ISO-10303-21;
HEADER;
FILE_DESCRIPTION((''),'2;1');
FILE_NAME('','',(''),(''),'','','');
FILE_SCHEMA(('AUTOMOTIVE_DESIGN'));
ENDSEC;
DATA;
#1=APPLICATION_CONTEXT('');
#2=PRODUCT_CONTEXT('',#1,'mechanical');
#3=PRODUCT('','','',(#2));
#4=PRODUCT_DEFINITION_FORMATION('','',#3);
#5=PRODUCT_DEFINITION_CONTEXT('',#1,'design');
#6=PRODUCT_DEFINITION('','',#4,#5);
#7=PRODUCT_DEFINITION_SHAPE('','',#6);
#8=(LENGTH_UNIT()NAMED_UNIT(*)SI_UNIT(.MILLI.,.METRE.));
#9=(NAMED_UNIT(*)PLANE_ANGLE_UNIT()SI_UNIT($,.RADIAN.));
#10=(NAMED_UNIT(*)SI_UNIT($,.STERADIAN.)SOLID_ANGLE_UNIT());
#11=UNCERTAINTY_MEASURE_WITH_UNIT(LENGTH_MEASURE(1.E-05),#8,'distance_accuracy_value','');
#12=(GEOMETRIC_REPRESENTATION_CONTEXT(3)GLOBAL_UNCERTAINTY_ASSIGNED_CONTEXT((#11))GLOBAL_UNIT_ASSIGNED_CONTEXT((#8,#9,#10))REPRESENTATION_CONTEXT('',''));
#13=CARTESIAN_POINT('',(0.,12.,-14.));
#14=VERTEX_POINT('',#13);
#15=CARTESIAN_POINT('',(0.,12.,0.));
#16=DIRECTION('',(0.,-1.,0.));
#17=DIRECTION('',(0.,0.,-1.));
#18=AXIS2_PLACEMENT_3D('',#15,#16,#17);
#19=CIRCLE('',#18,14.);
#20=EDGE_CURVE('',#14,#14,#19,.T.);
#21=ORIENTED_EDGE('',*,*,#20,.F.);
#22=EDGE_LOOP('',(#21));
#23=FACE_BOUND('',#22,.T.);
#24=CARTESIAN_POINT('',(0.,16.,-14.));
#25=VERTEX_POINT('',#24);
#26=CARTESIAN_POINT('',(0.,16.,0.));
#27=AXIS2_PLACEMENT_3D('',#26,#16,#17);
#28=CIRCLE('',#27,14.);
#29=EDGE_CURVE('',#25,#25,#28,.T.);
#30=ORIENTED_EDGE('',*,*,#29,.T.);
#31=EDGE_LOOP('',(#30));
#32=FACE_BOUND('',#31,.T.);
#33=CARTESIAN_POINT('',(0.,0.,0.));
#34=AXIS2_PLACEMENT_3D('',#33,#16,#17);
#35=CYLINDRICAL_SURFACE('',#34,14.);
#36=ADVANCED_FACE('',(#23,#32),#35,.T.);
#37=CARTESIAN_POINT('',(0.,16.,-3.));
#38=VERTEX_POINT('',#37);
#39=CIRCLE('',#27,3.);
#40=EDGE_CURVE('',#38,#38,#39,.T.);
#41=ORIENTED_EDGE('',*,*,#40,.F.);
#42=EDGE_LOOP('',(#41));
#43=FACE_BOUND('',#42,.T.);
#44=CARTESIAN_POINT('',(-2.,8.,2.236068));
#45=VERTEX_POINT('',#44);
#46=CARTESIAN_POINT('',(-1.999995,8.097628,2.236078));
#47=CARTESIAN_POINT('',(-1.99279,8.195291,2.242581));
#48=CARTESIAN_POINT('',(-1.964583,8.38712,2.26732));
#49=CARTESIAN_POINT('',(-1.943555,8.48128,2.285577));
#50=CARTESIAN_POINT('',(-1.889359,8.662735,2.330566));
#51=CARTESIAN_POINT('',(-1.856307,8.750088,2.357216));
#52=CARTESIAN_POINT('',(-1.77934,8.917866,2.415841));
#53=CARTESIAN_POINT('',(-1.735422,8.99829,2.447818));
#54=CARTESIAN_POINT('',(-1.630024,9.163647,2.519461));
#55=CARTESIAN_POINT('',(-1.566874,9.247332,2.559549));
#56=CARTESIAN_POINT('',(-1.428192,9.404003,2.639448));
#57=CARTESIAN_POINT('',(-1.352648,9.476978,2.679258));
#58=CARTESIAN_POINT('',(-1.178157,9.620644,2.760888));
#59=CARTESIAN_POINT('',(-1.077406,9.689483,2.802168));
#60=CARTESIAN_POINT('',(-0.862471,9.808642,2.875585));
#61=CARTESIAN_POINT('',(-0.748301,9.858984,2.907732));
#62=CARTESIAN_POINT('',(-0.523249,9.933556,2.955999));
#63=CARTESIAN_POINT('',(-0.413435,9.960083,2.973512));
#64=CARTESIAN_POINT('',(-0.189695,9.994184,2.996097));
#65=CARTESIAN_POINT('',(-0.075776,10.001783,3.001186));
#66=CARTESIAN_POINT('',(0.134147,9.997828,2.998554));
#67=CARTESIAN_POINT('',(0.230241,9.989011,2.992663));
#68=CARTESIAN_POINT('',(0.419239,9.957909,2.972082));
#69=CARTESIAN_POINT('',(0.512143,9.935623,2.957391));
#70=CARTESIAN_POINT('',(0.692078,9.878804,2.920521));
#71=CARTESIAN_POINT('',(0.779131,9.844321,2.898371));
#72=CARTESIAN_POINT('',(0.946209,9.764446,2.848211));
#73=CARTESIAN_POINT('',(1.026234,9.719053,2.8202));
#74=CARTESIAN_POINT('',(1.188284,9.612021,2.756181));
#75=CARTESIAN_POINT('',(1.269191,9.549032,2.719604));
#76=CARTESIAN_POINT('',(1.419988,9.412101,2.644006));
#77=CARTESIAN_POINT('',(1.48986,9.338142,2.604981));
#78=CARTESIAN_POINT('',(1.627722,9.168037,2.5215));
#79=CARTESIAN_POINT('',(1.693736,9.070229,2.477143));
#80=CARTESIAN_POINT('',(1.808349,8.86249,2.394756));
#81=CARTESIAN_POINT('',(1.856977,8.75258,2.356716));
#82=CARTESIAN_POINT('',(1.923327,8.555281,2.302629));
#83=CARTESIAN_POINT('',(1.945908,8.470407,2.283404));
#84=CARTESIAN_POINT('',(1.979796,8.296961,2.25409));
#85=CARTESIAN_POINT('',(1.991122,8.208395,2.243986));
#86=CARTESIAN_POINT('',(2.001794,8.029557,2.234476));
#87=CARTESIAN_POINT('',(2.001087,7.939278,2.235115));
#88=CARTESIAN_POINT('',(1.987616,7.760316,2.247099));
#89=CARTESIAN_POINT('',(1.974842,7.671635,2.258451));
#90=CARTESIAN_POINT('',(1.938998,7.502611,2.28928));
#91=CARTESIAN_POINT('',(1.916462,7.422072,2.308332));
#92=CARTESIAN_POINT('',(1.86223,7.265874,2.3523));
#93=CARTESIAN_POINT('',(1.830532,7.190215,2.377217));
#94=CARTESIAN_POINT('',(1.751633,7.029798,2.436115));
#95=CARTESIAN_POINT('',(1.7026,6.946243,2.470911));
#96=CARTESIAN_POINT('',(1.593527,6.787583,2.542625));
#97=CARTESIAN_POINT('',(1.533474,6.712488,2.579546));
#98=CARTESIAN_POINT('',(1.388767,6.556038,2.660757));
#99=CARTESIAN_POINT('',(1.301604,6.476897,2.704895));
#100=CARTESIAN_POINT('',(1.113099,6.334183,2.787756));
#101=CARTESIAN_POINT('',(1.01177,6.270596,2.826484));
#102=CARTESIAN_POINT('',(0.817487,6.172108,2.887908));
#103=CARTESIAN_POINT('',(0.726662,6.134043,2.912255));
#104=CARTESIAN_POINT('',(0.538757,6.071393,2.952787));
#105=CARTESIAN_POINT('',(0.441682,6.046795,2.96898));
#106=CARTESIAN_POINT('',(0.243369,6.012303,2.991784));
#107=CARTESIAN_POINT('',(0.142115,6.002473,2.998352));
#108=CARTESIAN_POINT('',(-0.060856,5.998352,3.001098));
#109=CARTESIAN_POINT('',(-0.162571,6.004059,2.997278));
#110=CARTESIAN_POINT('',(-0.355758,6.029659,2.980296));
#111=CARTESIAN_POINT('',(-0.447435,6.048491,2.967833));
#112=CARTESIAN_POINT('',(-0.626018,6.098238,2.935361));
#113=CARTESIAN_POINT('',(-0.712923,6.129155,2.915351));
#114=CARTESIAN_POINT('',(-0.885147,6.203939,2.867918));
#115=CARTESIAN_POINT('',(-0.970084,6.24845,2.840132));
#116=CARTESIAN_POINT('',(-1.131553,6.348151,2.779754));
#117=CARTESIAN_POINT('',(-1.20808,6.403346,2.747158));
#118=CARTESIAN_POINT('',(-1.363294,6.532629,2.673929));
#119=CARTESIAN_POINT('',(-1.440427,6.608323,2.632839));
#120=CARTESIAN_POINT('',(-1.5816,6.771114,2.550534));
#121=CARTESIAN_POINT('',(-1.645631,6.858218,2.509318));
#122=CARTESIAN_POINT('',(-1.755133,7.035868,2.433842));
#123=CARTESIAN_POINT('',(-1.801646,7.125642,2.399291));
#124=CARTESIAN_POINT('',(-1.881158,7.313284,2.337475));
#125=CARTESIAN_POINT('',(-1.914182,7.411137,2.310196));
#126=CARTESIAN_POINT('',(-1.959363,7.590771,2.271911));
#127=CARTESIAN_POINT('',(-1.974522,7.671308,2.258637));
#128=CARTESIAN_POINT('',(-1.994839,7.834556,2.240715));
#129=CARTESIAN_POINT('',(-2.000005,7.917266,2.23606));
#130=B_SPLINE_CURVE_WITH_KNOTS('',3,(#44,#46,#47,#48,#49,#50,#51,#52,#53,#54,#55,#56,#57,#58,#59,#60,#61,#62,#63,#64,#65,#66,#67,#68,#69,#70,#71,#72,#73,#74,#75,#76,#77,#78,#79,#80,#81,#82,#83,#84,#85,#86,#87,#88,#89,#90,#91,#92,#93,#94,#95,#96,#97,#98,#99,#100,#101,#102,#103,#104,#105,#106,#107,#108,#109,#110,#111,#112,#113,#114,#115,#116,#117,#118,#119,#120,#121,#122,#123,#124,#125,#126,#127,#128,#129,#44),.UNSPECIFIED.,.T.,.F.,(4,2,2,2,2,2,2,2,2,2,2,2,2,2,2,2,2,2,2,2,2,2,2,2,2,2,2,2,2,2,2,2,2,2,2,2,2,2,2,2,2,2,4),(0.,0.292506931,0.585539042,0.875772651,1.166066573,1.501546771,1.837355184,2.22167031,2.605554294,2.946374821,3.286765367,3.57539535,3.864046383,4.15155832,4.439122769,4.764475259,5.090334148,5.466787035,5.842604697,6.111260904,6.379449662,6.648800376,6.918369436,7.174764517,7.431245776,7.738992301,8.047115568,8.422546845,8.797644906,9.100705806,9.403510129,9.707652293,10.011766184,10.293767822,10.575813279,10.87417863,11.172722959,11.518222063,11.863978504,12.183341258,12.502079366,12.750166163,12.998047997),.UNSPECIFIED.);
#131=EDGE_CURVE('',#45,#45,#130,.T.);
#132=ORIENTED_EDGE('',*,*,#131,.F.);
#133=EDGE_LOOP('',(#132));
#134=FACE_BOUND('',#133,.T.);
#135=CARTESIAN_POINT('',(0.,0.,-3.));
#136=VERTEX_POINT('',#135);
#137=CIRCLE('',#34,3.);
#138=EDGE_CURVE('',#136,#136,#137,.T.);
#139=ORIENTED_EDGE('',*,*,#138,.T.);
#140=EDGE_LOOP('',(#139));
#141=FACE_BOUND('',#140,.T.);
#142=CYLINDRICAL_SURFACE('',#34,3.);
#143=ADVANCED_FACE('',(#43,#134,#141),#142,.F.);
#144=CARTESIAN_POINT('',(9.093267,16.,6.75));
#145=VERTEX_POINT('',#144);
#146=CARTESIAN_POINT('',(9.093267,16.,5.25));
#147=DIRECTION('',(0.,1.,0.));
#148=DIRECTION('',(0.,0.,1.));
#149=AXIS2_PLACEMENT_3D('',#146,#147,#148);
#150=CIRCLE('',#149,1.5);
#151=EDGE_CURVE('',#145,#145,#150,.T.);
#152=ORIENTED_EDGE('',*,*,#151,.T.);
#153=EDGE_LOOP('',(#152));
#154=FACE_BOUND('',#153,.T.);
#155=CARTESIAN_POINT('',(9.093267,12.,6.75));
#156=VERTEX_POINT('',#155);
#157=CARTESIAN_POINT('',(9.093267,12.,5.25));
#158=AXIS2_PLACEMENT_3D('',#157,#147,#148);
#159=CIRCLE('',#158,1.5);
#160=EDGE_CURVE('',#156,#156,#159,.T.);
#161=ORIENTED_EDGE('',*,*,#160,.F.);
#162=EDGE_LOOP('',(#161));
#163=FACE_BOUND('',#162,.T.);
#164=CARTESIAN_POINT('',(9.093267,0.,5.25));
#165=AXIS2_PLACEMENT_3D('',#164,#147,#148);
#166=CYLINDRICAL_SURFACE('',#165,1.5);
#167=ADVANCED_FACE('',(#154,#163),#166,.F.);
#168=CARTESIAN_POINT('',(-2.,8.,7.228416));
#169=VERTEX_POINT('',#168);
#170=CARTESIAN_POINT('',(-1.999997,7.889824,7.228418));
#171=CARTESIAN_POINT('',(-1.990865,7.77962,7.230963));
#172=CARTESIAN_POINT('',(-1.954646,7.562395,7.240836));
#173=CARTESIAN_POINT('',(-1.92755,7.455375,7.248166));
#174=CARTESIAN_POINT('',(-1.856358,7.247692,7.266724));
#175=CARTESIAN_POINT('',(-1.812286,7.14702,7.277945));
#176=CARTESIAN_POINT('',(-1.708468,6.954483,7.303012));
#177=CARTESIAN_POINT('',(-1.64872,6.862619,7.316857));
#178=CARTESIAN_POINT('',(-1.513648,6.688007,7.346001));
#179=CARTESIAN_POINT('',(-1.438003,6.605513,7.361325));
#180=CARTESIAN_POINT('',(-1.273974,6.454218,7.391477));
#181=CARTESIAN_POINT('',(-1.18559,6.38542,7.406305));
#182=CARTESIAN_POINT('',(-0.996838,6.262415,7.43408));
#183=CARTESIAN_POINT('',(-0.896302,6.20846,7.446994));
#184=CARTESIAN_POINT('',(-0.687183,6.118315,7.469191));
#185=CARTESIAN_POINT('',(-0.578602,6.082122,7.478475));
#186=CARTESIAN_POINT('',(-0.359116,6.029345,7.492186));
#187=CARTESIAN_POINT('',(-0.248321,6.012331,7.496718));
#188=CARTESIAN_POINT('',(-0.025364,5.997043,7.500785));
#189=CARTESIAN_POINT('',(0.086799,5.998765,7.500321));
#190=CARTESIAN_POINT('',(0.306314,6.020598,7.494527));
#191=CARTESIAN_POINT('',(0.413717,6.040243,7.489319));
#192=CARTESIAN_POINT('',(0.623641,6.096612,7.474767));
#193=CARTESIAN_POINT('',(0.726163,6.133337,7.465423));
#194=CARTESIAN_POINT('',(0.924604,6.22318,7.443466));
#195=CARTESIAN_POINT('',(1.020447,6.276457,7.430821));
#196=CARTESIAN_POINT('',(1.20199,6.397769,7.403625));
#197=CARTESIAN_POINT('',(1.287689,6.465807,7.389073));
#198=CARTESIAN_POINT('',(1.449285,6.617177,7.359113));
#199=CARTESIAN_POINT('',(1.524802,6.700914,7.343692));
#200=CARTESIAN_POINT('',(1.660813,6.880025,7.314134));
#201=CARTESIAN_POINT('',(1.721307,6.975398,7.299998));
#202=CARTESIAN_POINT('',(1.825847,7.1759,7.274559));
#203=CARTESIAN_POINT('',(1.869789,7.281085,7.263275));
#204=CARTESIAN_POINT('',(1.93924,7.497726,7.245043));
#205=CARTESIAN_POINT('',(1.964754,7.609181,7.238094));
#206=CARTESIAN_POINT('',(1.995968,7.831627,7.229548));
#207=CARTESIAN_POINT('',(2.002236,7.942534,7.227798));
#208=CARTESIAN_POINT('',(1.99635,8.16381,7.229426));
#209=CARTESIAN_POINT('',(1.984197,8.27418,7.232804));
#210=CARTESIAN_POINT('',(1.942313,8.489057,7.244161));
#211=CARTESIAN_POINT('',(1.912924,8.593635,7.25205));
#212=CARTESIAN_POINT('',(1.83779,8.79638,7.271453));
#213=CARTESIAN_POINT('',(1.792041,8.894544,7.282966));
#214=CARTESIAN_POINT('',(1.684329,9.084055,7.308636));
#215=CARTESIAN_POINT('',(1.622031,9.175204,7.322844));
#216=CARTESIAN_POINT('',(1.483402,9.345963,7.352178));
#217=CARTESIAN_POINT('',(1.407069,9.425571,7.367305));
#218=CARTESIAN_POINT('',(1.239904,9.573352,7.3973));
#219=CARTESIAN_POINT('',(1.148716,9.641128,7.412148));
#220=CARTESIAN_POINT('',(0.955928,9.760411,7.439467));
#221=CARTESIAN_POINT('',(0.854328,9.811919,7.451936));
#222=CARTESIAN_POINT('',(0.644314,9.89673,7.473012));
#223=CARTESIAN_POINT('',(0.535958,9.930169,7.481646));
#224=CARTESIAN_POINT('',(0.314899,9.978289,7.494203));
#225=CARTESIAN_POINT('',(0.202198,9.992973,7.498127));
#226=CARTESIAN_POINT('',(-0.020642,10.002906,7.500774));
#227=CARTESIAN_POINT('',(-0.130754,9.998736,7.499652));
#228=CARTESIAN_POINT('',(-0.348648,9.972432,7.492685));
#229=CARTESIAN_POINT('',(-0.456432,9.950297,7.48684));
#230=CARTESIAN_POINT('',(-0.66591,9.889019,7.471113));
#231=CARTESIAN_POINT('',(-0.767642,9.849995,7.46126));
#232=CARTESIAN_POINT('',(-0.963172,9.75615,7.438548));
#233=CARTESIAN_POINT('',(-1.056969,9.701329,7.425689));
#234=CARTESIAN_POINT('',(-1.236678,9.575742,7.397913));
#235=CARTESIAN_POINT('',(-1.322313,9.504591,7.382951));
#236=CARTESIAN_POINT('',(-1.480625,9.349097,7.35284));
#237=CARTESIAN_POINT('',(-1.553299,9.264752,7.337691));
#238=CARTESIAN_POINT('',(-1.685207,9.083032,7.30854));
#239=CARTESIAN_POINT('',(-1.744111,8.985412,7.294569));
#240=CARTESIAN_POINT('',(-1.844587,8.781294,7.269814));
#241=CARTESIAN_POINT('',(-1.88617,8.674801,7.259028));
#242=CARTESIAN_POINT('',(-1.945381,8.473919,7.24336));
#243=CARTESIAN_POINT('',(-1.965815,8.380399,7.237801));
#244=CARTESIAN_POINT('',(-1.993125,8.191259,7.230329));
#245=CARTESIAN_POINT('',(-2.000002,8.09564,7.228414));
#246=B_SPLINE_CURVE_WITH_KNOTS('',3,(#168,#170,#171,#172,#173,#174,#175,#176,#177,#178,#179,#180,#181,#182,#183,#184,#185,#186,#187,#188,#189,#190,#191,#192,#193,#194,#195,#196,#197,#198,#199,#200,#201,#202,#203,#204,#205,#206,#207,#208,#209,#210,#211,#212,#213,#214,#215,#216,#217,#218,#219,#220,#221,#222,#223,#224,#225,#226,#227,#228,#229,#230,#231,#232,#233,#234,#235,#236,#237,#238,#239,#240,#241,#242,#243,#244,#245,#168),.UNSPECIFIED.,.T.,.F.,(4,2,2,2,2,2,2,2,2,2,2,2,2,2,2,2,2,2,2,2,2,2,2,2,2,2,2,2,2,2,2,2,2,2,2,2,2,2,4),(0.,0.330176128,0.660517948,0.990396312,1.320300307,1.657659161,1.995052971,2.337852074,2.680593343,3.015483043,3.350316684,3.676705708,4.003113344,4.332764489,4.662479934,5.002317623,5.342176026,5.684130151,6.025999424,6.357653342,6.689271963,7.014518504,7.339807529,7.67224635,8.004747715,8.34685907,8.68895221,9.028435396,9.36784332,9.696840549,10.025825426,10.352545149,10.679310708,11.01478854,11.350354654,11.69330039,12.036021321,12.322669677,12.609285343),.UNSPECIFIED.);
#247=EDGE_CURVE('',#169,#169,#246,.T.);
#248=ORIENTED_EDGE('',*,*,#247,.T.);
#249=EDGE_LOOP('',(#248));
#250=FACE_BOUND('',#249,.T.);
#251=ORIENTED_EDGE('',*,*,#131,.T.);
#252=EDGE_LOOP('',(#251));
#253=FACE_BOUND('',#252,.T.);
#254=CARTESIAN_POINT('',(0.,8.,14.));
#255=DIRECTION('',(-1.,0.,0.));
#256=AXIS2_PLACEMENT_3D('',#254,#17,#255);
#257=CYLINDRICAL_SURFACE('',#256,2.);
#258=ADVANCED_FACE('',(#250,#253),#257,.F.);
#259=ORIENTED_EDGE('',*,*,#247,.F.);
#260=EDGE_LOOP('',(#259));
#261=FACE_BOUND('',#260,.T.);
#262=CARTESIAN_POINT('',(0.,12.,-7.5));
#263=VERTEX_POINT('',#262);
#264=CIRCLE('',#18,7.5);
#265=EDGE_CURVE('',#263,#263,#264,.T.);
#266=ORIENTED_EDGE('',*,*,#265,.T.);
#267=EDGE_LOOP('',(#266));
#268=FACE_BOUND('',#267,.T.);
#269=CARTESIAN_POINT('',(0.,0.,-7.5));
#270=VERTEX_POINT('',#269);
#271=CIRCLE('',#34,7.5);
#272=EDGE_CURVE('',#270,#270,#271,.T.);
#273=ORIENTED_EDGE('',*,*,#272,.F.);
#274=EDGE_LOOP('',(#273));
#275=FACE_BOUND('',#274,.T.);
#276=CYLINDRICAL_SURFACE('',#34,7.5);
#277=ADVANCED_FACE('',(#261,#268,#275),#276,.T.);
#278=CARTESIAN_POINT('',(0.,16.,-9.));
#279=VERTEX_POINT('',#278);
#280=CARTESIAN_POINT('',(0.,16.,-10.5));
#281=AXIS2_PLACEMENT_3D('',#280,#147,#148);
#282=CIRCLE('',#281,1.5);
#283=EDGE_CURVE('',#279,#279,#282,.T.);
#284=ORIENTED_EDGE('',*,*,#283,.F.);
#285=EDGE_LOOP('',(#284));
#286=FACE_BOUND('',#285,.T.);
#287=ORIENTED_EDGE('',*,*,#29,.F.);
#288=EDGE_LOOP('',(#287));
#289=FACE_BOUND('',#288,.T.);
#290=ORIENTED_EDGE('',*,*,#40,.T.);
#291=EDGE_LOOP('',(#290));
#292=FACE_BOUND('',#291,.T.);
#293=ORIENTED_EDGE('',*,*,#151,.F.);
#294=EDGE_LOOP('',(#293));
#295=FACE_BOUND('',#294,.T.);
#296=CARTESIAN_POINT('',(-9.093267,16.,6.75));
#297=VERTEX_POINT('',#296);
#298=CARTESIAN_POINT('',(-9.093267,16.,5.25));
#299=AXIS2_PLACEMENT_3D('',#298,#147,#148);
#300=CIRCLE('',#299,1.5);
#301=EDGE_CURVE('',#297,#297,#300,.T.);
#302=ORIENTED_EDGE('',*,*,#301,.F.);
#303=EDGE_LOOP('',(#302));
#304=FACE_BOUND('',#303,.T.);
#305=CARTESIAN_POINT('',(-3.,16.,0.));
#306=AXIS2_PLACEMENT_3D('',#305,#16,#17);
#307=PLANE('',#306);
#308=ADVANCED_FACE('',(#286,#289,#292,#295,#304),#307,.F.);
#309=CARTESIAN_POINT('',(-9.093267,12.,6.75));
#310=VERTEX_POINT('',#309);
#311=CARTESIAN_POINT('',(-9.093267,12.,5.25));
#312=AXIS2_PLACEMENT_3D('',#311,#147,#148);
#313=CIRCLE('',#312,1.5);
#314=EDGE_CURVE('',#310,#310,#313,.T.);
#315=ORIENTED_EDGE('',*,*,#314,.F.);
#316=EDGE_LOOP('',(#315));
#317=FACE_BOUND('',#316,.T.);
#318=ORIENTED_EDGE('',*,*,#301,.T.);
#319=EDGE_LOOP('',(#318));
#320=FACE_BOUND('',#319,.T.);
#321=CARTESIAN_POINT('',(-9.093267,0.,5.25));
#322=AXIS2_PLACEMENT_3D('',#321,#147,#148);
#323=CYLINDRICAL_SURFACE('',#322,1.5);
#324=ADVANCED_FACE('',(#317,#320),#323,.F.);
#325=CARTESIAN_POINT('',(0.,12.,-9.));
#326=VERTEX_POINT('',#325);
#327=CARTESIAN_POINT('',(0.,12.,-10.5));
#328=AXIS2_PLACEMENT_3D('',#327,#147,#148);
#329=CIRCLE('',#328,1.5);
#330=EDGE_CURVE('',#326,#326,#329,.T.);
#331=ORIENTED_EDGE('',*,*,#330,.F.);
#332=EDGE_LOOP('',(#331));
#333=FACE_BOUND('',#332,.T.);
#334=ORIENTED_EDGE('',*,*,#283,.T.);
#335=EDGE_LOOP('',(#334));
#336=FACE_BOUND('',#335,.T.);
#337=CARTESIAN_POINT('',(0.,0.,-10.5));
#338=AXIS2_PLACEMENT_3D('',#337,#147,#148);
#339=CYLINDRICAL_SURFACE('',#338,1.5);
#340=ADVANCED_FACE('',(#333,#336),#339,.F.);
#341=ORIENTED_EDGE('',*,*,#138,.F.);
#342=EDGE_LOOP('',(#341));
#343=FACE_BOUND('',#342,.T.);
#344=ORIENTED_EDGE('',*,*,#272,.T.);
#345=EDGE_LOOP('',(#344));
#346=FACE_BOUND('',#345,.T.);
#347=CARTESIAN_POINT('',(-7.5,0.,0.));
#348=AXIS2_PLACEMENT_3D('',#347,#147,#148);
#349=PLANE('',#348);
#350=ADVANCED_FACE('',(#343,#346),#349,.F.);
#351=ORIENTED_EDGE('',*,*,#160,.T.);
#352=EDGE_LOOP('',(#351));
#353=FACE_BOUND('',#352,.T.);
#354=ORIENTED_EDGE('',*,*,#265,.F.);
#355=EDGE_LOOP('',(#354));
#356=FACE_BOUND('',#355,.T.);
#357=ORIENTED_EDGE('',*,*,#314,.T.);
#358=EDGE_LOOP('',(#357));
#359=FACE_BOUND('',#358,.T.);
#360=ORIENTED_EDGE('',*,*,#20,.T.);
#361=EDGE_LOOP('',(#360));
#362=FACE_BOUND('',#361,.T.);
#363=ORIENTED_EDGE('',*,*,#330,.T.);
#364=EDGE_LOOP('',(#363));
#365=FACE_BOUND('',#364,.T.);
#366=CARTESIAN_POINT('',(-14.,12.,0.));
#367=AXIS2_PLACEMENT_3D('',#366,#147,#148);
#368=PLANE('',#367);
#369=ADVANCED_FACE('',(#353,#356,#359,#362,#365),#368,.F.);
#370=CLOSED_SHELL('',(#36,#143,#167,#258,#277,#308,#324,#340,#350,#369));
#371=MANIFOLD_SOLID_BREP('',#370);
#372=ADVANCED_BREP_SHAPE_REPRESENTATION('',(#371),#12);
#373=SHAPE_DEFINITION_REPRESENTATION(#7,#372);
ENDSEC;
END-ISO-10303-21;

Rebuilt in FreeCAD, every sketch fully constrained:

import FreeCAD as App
import Part
import Sketcher
Q = App.Units.Quantity

doc = App.newDocument("Part")
body = doc.addObject("PartDesign::Body", "Body")

sketch1 = body.newObject("Sketcher::SketchObject", "Sketch")
sketch1.AttachmentSupport = (doc.getObject("XY_Plane"), [""])
sketch1.MapMode = "FlatFace"
sketch1.addGeometry(Part.LineSegment(App.Vector(-3, 0, 0), App.Vector(-3, 16, 0)), False)
sketch1.addGeometry(Part.LineSegment(App.Vector(-3, 16, 0), App.Vector(-14, 16, 0)), False)
sketch1.addGeometry(Part.LineSegment(App.Vector(-14, 16, 0), App.Vector(-14, 12, 0)), False)
sketch1.addGeometry(Part.LineSegment(App.Vector(-14, 12, 0), App.Vector(-7.5, 12, 0)), False)
sketch1.addGeometry(Part.LineSegment(App.Vector(-7.5, 12, 0), App.Vector(-7.5, 0, 0)), False)
sketch1.addGeometry(Part.LineSegment(App.Vector(-7.5, 0, 0), App.Vector(-3, 0, 0)), False)
sketch1.addConstraint(Sketcher.Constraint("Coincident", 0, 2, 1, 1))
sketch1.addConstraint(Sketcher.Constraint("Coincident", 1, 2, 2, 1))
sketch1.addConstraint(Sketcher.Constraint("Coincident", 2, 2, 3, 1))
sketch1.addConstraint(Sketcher.Constraint("Coincident", 3, 2, 4, 1))
sketch1.addConstraint(Sketcher.Constraint("Coincident", 4, 2, 5, 1))
sketch1.addConstraint(Sketcher.Constraint("Coincident", 5, 2, 0, 1))
sketch1.addConstraint(Sketcher.Constraint("Vertical", 0))
sketch1.addConstraint(Sketcher.Constraint("Horizontal", 1))
sketch1.addConstraint(Sketcher.Constraint("Vertical", 2))
sketch1.addConstraint(Sketcher.Constraint("Horizontal", 3))
sketch1.addConstraint(Sketcher.Constraint("Vertical", 4))
sketch1.addConstraint(Sketcher.Constraint("Horizontal", 5))
sketch1.addConstraint(Sketcher.Constraint("PointOnObject", 4, 2, -1))
sketch1.addConstraint(Sketcher.Constraint("DistanceX", 1, 2, 1, 1, Q("11 mm")))
sketch1.addConstraint(Sketcher.Constraint("DistanceY", 0, 1, 0, 2, Q("16 mm")))
sketch1.addConstraint(Sketcher.Constraint("DistanceY", 2, 2, 2, 1, Q("4 mm")))
sketch1.addConstraint(Sketcher.Constraint("DistanceX", 3, 1, 3, 2, Q("6.5 mm")))
sketch1.addConstraint(Sketcher.Constraint("DistanceX", 0, 2, -1, 1, Q("3 mm")))
revolution = body.newObject("PartDesign::Revolution", "Revolution")
revolution.Profile = sketch1
revolution.ReferenceAxis = (sketch1, ["V_Axis"])
revolution.Angle = 360

sketch2 = body.newObject("Sketcher::SketchObject", "Sketch001")
sketch2.AttachmentSupport = (doc.getObject("XZ_Plane"), [""])
sketch2.MapMode = "FlatFace"
sketch2.AttachmentOffset = App.Placement(App.Vector(0, 0, -16), App.Rotation())
sketch2.addGeometry(Part.Circle(App.Vector(9.1, 5.2, 0), App.Vector(0, 0, 1), 1.5), False)
sketch2.addGeometry(Part.Circle(App.Vector(-9.1, 5.2, 0), App.Vector(0, 0, 1), 1.5), False)
sketch2.addGeometry(Part.Circle(App.Vector(0, -10.5, 0), App.Vector(0, 0, 1), 1.5), False)
sketch2.addConstraint(Sketcher.Constraint("Equal", 0, 1))
sketch2.addConstraint(Sketcher.Constraint("Equal", 1, 2))
sketch2.addConstraint(Sketcher.Constraint("Symmetric", 0, 3, 1, 3, -2))
sketch2.addConstraint(Sketcher.Constraint("PointOnObject", 2, 3, -2))
sketch2.addConstraint(Sketcher.Constraint("Diameter", 0, Q("3 mm")))
sketch2.addConstraint(Sketcher.Constraint("DistanceY", 2, 3, -1, 1, Q("10.5 mm")))
sketch2.addConstraint(Sketcher.Constraint("DistanceY", -1, 1, 0, 3, Q("5.25 mm")))
sketch2.addConstraint(Sketcher.Constraint("DistanceX", -1, 1, 0, 3, Q("9.093267 mm")))
pocket1 = body.newObject("PartDesign::Pocket", "Pocket")
pocket1.Profile = sketch2
pocket1.Type = "ThroughAll"
pocket1.Reversed = True

sketch3 = body.newObject("Sketcher::SketchObject", "Sketch002")
sketch3.AttachmentSupport = (doc.getObject("XY_Plane"), [""])
sketch3.MapMode = "FlatFace"
sketch3.addGeometry(Part.Circle(App.Vector(0, 8, 0), App.Vector(0, 0, 1), 2), False)
sketch3.addConstraint(Sketcher.Constraint("PointOnObject", 0, 3, -2))
sketch3.addConstraint(Sketcher.Constraint("Diameter", 0, Q("4 mm")))
sketch3.addConstraint(Sketcher.Constraint("DistanceY", -1, 1, 0, 3, Q("8 mm")))
pocket2 = body.newObject("PartDesign::Pocket", "Pocket001")
pocket2.Profile = sketch3
pocket2.Type = "ThroughAll"
pocket2.Reversed = True

doc.recompute()
